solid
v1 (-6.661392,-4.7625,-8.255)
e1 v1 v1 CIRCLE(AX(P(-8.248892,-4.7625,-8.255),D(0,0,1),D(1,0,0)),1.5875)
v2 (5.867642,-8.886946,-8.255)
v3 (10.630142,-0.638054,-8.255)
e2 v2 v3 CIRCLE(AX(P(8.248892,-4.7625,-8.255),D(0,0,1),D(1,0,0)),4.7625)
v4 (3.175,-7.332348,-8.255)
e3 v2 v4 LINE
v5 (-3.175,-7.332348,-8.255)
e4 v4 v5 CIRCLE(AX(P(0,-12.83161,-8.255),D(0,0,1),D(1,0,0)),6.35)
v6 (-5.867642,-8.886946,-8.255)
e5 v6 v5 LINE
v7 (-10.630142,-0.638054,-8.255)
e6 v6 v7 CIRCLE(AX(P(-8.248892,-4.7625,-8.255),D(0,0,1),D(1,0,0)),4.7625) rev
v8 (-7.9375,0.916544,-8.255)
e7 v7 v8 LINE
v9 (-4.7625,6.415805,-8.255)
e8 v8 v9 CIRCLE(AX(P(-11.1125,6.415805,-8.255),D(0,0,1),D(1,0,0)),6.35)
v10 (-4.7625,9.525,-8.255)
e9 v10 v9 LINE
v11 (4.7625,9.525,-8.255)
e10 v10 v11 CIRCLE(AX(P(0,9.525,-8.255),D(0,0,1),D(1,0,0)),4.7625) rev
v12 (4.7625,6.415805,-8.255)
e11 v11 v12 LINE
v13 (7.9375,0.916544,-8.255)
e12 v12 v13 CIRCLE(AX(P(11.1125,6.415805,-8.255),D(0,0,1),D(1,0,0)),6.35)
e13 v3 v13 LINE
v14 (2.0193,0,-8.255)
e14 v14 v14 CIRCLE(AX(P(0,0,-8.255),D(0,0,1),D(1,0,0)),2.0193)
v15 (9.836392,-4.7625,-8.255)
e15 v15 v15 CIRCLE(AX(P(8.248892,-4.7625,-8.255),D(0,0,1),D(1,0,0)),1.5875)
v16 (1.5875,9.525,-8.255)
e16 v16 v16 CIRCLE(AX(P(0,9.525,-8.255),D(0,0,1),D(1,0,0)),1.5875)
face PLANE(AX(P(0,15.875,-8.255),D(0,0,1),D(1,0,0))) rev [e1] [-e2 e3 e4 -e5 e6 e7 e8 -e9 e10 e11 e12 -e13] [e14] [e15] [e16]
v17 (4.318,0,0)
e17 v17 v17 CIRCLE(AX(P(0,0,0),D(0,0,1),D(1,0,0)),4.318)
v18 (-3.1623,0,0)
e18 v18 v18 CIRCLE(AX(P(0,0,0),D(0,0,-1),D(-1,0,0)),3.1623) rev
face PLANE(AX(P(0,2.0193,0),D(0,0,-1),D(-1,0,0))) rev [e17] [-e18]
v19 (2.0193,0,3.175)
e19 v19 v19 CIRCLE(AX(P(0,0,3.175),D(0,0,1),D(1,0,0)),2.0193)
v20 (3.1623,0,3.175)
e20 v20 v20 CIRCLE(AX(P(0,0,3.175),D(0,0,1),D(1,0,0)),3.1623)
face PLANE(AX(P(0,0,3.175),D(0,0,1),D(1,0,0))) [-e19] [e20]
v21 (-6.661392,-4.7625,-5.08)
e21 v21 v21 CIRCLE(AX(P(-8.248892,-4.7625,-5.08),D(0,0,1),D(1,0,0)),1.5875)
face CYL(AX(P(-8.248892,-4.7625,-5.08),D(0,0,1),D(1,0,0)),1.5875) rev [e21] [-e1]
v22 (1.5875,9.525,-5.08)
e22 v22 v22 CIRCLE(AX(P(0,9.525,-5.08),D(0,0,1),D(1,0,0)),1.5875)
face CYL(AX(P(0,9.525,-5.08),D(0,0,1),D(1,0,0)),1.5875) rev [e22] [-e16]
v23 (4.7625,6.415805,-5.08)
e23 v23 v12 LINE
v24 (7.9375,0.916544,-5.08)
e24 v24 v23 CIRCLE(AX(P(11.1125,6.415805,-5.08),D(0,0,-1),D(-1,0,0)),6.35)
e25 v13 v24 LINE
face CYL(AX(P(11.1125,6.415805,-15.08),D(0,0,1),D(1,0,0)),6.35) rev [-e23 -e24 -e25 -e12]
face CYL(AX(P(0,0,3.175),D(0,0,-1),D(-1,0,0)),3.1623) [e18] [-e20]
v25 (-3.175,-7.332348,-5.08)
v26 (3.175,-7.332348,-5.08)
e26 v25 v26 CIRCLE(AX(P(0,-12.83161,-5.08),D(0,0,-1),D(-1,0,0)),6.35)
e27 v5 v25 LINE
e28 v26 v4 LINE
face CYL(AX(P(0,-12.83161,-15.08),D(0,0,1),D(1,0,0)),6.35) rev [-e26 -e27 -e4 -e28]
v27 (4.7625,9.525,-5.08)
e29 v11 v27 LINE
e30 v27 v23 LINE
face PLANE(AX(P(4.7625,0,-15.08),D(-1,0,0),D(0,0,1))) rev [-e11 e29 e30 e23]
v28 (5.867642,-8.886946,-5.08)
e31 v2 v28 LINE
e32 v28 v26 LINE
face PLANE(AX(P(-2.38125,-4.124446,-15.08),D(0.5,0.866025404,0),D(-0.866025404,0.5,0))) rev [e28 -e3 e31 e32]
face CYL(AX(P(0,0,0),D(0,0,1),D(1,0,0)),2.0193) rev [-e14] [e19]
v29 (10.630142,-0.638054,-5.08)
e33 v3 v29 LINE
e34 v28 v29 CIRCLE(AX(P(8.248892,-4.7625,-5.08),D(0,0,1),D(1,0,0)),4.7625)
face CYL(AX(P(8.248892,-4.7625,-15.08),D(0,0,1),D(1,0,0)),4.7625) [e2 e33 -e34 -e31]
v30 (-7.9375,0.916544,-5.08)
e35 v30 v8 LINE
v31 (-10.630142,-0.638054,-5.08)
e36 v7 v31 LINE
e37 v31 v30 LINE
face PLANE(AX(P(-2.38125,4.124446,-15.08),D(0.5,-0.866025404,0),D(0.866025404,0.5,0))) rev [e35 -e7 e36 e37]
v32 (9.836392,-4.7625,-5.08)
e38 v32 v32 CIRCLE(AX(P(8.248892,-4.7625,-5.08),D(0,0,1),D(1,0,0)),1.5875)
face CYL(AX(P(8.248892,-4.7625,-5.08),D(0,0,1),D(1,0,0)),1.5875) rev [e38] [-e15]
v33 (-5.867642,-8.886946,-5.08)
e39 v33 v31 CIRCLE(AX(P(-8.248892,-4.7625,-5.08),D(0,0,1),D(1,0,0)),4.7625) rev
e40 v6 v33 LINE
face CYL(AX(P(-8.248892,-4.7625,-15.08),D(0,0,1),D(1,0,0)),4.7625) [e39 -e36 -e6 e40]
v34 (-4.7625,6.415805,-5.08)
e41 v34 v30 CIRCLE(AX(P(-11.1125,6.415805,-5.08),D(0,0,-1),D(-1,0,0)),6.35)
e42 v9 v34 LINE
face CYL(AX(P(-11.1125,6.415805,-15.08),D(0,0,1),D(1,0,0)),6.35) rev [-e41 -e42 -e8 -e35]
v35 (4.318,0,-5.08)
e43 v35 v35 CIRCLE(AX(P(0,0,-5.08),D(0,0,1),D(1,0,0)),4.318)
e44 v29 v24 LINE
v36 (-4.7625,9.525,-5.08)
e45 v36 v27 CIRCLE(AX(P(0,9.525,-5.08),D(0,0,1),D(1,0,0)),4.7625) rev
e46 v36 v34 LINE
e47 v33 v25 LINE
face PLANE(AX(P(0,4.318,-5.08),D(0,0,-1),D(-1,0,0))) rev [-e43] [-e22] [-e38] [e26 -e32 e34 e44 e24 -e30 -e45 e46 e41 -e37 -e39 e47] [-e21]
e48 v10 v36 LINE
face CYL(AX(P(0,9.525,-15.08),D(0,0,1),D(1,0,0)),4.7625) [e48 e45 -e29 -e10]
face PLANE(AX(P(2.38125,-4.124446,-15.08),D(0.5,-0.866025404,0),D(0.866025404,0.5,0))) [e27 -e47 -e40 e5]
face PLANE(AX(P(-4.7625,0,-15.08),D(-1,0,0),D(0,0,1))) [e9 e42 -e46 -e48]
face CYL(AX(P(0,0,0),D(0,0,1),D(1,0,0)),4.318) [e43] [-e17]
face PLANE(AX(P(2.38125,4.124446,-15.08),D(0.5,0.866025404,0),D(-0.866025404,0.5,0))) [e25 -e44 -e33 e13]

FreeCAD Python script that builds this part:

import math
import FreeCAD as App
import Part
import Sketcher
from FreeCAD import Vector
Q = App.Units.Quantity


def edges_at(feature, points):
    """Names of the edges that pass closest to the given points."""
    edges = feature.Shape.Edges
    near = lambda p: min(range(len(edges)), key=lambda i: edges[i].distToShape(Part.Vertex(*p))[0])
    return sorted({f"Edge{near(p) + 1}" for p in points})


def add_polygon(sketch, points):
    """Adds a closed chain of lines whose ends are joined by coincident constraints."""
    first, n = sketch.GeometryCount, len(points)
    for a, b in zip(points, points[1:] + points[:1]):
        sketch.addGeometry(Part.LineSegment(App.Vector(*a, 0), App.Vector(*b, 0)), False)
    for i in range(n):
        sketch.addConstraint(Sketcher.Constraint("Coincident", first + i, 2, first + (i + 1) % n, 1))

doc = App.newDocument("Part")
body = doc.addObject("PartDesign::Body", "Body")

sketch1 = body.newObject("Sketcher::SketchObject", "Sketch")
sketch1.AttachmentSupport = (doc.getObject("YZ_Plane"), [""])
sketch1.MapMode = "FlatFace"
add_polygon(sketch1, [(4.3, 0), (2, 0), (2, -8.3), (15.9, -8.3), (15.9, -5.1), (4.3, -5.1)])
sketch1.addConstraint([
    Sketcher.Constraint("Horizontal", 0),
    Sketcher.Constraint("Vertical", 1),
    Sketcher.Constraint("Horizontal", 2),
    Sketcher.Constraint("Vertical", 3),
    Sketcher.Constraint("Horizontal", 4),
    Sketcher.Constraint("Vertical", 5),
    Sketcher.Constraint("PointOnObject", 0, 2, -1),
    Sketcher.Constraint("DistanceY", 5, 1, 5, 2, Q("0.2 in")),
    Sketcher.Constraint("DistanceX", 4, 2, 4, 1, Q("0.455 in")),
    Sketcher.Constraint("DistanceY", 1, 2, 1, 1, Q("0.325 in")),
    Sketcher.Constraint("DistanceX", -1, 1, 4, 2, Q("0.17 in")),
    Sketcher.Constraint("DistanceX", 0, 2, 0, 1, Q("0.0905 in")),
])
revolution = body.newObject("PartDesign::Revolution", "Revolution")
revolution.Profile = sketch1
revolution.ReferenceAxis = (sketch1, ["V_Axis"])
revolution.Angle = 360

sketch2 = body.newObject("Sketcher::SketchObject", "Sketch001")
sketch2.AttachmentSupport = (doc.getObject("XY_Plane"), [""])
sketch2.MapMode = "FlatFace"
sketch2.AttachmentOffset = App.Placement(Vector(0, 0, -0.2 * 25.4), App.Rotation())
sketch2.addGeometry([
    Part.Circle(Vector(0, 9.5, 0), Vector(0, 0, 1), 1.6),
    Part.Circle(Vector(0, 0, 0), Vector(0, 0, 1), 1.6),
], False)
sketch2.addConstraint([
    Sketcher.Constraint("Coincident", 1, 3, -1, 1),
    Sketcher.Constraint("Equal", 0, 1),
    Sketcher.Constraint("PointOnObject", 0, 3, -2),
    Sketcher.Constraint("Diameter", 0, Q("0.125 in")),
    Sketcher.Constraint("DistanceY", -1, 1, 0, 3, Q("0.375 in")),
])
doc.recompute()
hole = body.newObject("PartDesign::Hole", "Hole")
hole.Profile = sketch2
hole.ThreadType = "None"
hole.Diameter = Q("0.125 in")
hole.DepthType = "ThroughAll"
doc.recompute()

polarpattern = body.newObject("PartDesign::PolarPattern", "PolarPattern")
polarpattern.Originals = [hole]
polarpattern.Axis = (doc.getObject("Z_Axis"), [""])
polarpattern.Angle = 360
polarpattern.Occurrences = 3
body.Tip = polarpattern

sketch3 = body.newObject("Sketcher::SketchObject", "Sketch002")
sketch3.AttachmentSupport = (doc.getObject("XY_Plane"), [""])
sketch3.MapMode = "FlatFace"
sketch3.AttachmentOffset = App.Placement(Vector(0, 0, -15.08), App.Rotation())
sketch3.addGeometry([
    Part.Circle(Vector(0, 0, 0), Vector(0, 0, 1), 15.9),
    Part.LineSegment(Vector(-4.8, 2.7, 0), Vector(-4.8, 9.5, 0)),
    Part.ArcOfCircle(Part.Circle(Vector(0, 9.5, 0), Vector(0, 0, 1), 4.8), math.radians(0), math.radians(180)),
    Part.LineSegment(Vector(4.8, 9.5, 0), Vector(4.8, 2.7, 0)),
    Part.LineSegment(Vector(4.8, 2.7, 0), Vector(10.6, -0.6, 0)),
    Part.ArcOfCircle(Part.Circle(Vector(8.2, -4.8, 0), Vector(0, 0, 1), 4.8), math.radians(-120), math.radians(60)),
    Part.LineSegment(Vector(5.9, -8.9, 0), Vector(0, -5.5, 0)),
    Part.LineSegment(Vector(0, -5.5, 0), Vector(-5.9, -8.9, 0)),
    Part.ArcOfCircle(Part.Circle(Vector(-8.2, -4.8, 0), Vector(0, 0, 1), 4.8), math.radians(120), math.radians(300)),
    Part.LineSegment(Vector(-10.6, -0.6, 0), Vector(-4.8, 2.7, 0)),
], False)
sketch3.addConstraint([
    Sketcher.Constraint("Tangent", 1, 2, 2, 2),
    Sketcher.Constraint("Tangent", 2, 1, 3, 1),
    Sketcher.Constraint("Coincident", 3, 2, 4, 1),
    Sketcher.Constraint("Tangent", 4, 2, 5, 2),
    Sketcher.Constraint("Tangent", 5, 1, 6, 1),
    Sketcher.Constraint("Coincident", 6, 2, 7, 1),
    Sketcher.Constraint("Tangent", 7, 2, 8, 2),
    Sketcher.Constraint("Tangent", 8, 1, 9, 1),
    Sketcher.Constraint("Coincident", 9, 2, 1, 1),
    Sketcher.Constraint("Vertical", 1),
    Sketcher.Constraint("Vertical", 3),
    Sketcher.Constraint("Coincident", 0, 3, -1, 1),
    Sketcher.Constraint("Equal", 2, 5),
    Sketcher.Constraint("Equal", 5, 8),
    Sketcher.Constraint("Symmetric", 5, 3, 8, 3, -2),
    Sketcher.Constraint("Symmetric", 3, 2, 9, 2, -2),
    Sketcher.Constraint("PointOnObject", 6, 2, -2),
    Sketcher.Constraint("Parallel", 4, 6),
    Sketcher.Constraint("Equal", 4, 6),
    Sketcher.Constraint("Diameter", 0, Q("1.25 in")),
    Sketcher.Constraint("Radius", 2, Q("0.1875 in")),
    Sketcher.Constraint("DistanceY", -1, 1, 2, 3, Q("0.375 in")),
    Sketcher.Constraint("DistanceY", 5, 3, -1, 1, Q("0.1875 in")),
    Sketcher.Constraint("DistanceY", 1, 1, 1, 2, 6.775369),
])
pocket1 = body.newObject("PartDesign::Pocket", "Pocket")
pocket1.Profile = sketch3
pocket1.Length = 10
pocket1.Reversed = True
doc.recompute()

fillet = body.newObject("PartDesign::Fillet", "Fillet")
fillet.Base = (pocket1, edges_at(pocket1, [(0, -5.499, -6.668), (4.763, 2.75, -6.668), (-4.763, 2.75, -6.668)]))
fillet.Radius = Q("0.25 in")

sketch4 = body.newObject("Sketcher::SketchObject", "Sketch003")
sketch4.AttachmentSupport = (doc.getObject("XY_Plane"), [""])
sketch4.MapMode = "FlatFace"
sketch4.AttachmentOffset = App.Placement(Vector(0, 0, 0.125 * 25.4), App.Rotation())
sketch4.addGeometry([
    Part.Circle(Vector(0, 0, 0), Vector(0, 0, 1), 3.2),
    Part.Circle(Vector(0, 0, 0), Vector(0, 0, 1), 2),
], False)
sketch4.addConstraint([
    Sketcher.Constraint("Coincident", 0, 3, -1, 1),
    Sketcher.Constraint("Coincident", 1, 3, -1, 1),
    Sketcher.Constraint("Diameter", 0, Q("0.249 in")),
    Sketcher.Constraint("Diameter", 1, Q("0.159 in")),
])
pad1 = body.newObject("PartDesign::Pad", "Pad")
pad1.Profile = sketch4
pad1.Length = Q("0.125 in")
pad1.Reversed = True

doc.recompute()
